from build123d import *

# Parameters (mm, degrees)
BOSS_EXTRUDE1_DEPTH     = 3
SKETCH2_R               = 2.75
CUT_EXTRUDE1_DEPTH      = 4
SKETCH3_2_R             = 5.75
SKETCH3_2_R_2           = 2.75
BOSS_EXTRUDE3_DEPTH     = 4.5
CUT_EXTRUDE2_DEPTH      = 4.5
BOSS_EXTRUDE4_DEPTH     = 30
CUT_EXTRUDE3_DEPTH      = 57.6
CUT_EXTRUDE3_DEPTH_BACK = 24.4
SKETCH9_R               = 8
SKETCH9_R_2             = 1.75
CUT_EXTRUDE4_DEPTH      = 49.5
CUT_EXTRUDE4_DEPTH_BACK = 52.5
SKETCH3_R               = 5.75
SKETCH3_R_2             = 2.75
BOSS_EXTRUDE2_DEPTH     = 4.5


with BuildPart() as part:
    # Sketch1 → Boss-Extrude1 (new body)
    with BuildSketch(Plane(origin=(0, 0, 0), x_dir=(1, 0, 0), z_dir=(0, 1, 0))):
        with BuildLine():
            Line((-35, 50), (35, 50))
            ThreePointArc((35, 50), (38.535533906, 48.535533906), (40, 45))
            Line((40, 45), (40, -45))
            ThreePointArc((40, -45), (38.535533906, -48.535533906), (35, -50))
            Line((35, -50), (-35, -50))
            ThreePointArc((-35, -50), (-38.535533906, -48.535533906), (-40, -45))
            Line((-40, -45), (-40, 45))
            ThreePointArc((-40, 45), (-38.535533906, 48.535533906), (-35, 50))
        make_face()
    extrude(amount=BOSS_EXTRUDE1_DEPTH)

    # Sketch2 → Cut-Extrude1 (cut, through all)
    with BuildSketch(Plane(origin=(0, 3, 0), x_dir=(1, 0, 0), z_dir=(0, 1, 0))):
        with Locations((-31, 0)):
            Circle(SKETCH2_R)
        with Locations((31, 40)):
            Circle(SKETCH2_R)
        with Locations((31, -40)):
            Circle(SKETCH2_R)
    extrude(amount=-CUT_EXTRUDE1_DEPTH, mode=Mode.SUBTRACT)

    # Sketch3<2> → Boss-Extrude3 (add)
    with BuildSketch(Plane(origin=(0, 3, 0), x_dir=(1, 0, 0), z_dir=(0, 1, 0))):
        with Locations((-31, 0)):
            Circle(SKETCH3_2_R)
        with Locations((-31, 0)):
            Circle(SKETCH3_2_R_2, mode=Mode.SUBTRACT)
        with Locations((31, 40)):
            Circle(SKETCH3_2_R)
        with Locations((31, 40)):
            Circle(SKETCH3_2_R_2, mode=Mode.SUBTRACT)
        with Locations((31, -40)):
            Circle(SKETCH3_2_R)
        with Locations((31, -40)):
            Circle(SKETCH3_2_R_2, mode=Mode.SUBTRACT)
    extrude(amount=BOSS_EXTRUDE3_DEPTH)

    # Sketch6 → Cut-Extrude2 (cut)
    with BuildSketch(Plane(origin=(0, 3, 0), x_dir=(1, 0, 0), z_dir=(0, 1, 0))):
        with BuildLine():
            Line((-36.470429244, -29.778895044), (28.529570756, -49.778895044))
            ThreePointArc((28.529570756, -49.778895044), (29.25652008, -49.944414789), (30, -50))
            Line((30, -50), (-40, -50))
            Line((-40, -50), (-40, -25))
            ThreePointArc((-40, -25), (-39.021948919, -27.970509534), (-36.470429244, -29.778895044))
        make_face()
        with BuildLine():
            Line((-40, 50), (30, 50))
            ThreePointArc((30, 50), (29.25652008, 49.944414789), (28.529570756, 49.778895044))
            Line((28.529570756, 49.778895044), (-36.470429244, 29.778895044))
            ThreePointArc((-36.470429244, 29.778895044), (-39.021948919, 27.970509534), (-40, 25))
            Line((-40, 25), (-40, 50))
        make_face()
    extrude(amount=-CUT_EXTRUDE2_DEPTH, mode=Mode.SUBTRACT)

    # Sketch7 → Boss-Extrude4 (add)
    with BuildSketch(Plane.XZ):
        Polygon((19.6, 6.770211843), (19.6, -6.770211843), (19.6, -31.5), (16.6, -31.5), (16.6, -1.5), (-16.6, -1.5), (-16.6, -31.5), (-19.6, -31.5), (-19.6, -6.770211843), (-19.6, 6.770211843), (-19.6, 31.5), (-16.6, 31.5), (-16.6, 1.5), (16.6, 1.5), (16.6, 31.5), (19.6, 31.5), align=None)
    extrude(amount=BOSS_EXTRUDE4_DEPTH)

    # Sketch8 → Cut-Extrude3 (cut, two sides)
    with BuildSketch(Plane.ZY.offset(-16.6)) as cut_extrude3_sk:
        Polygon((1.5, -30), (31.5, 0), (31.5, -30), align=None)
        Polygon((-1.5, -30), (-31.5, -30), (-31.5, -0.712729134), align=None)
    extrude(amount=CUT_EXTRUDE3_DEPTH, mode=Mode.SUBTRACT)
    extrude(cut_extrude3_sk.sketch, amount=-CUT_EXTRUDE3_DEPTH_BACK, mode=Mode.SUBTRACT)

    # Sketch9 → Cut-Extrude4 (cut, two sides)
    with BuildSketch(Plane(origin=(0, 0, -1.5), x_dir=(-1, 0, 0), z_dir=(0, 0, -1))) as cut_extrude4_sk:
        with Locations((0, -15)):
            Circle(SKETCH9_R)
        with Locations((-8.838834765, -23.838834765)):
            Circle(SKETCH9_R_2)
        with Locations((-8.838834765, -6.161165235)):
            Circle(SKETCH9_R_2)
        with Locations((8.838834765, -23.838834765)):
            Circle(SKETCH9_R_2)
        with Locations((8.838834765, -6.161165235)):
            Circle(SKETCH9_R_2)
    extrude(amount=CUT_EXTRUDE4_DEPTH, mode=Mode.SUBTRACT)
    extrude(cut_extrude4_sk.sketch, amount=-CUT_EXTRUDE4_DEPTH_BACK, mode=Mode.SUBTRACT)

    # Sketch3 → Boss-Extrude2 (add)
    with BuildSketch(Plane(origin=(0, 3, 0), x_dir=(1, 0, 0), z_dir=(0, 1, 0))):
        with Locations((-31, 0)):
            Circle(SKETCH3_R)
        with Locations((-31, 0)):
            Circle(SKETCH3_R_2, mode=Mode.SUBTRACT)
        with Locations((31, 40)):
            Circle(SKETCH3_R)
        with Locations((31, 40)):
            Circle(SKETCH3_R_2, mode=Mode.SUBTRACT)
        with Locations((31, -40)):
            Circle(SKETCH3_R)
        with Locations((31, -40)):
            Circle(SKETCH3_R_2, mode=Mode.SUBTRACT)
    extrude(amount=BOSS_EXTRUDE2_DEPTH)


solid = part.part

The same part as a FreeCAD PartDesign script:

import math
import FreeCAD as App
import Part
import Sketcher
from FreeCAD import Vector
Q = App.Units.Quantity

doc = App.newDocument("Part")
params = doc.addObject("Spreadsheet::Sheet", "Params")
for row, (alias, value) in enumerate([
    ("sketch1_radius", "5 mm"),
    ("sketch1_width", "70 mm"),
    ("sketch1_height", "90 mm"),
    ("pad1_length", "3 mm"),
    ("sketch2_diameter", "5.5 mm"),
    ("sketch3_diameter", "11.5 mm"),
    ("sketch3_diameter2", "5.5 mm"),
    ("pad2_length", "4.5 mm"),
    ("sketch4_radius", "5 mm"),
    ("sketch4_width", "70 mm"),
    ("sketch4_height", "25 mm"),
    ("pocket2_length", "4.5 mm"),
    ("sketch5_width", "3 mm"),
    ("sketch5_height", "63 mm"),
    ("sketch5_height2", "30 mm"),
    ("sketch5_width2", "33.2 mm"),
    ("pad3_length", "30 mm"),
    ("sketch6_width", "30 mm"),
    ("sketch7_diameter", "16 mm"),
    ("sketch7_diameter2", "3.5 mm"),
    ("sketch8_diameter", "11.5 mm"),
    ("sketch8_diameter2", "5.5 mm"),
    ("pad4_length", "4.5 mm"),
], start=1):
    params.set(f"A{row}", alias)
    params.set(f"B{row}", "=" + value)
    params.setAlias(f"B{row}", alias)

body = doc.addObject("PartDesign::Body", "Body")

sketch1 = doc.addObject("Sketcher::SketchObject", "Sketch")
body.addObject(sketch1)
sketch1.AttachmentSupport = (doc.XZ_Plane, [""])
sketch1.MapMode = "FlatFace"
sketch1.addGeometry(Part.LineSegment(Vector(35, -50, 0), Vector(-35, -50, 0)), False)
sketch1.addGeometry(Part.ArcOfCircle(Part.Circle(Vector(-35, -45, 0), Vector(0, 0, 1), 5), math.radians(180), math.radians(270)), False)
sketch1.addGeometry(Part.LineSegment(Vector(-40, -45, 0), Vector(-40, 45, 0)), False)
sketch1.addGeometry(Part.ArcOfCircle(Part.Circle(Vector(-35, 45, 0), Vector(0, 0, 1), 5), math.radians(90), math.radians(180)), False)
sketch1.addGeometry(Part.LineSegment(Vector(-35, 50, 0), Vector(35, 50, 0)), False)
sketch1.addGeometry(Part.ArcOfCircle(Part.Circle(Vector(35, 45, 0), Vector(0, 0, 1), 5), math.radians(0), math.radians(90)), False)
sketch1.addGeometry(Part.LineSegment(Vector(40, 45, 0), Vector(40, -45, 0)), False)
sketch1.addGeometry(Part.ArcOfCircle(Part.Circle(Vector(35, -45, 0), Vector(0, 0, 1), 5), math.radians(-90), math.radians(0)), False)
sketch1.addConstraint(Sketcher.Constraint("Tangent", 0, 2, 1, 2))
sketch1.addConstraint(Sketcher.Constraint("Tangent", 1, 1, 2, 1))
sketch1.addConstraint(Sketcher.Constraint("Tangent", 2, 2, 3, 2))
sketch1.addConstraint(Sketcher.Constraint("Tangent", 3, 1, 4, 1))
sketch1.addConstraint(Sketcher.Constraint("Tangent", 4, 2, 5, 2))
sketch1.addConstraint(Sketcher.Constraint("Tangent", 5, 1, 6, 1))
sketch1.addConstraint(Sketcher.Constraint("Tangent", 6, 2, 7, 2))
sketch1.addConstraint(Sketcher.Constraint("Tangent", 7, 1, 0, 1))
sketch1.addConstraint(Sketcher.Constraint("Horizontal", 0))
sketch1.addConstraint(Sketcher.Constraint("Vertical", 2))
sketch1.addConstraint(Sketcher.Constraint("Horizontal", 4))
sketch1.addConstraint(Sketcher.Constraint("Vertical", 6))
sketch1.addConstraint(Sketcher.Constraint("Equal", 1, 3))
sketch1.addConstraint(Sketcher.Constraint("Equal", 3, 5))
sketch1.addConstraint(Sketcher.Constraint("Equal", 5, 7))
sketch1.addConstraint(Sketcher.Constraint("Symmetric", 1, 3, 5, 3, -1, 1))
sketch1.addConstraint(Sketcher.Constraint("Radius", 1, Q("5 mm")))
sketch1.addConstraint(Sketcher.Constraint("DistanceX", 0, 2, 0, 1, Q("70 mm")))
sketch1.addConstraint(Sketcher.Constraint("DistanceY", 2, 1, 2, 2, Q("90 mm")))
sketch1.setExpression("Constraints[16]", "Params.sketch1_radius")
sketch1.setExpression("Constraints[17]", "Params.sketch1_width")
sketch1.setExpression("Constraints[18]", "Params.sketch1_height")
pad1 = doc.addObject("PartDesign::Pad", "Pad")
body.addObject(pad1)
pad1.Profile = sketch1
pad1.setExpression("Length", "Params.pad1_length")
pad1.Reversed = True

sketch2 = doc.addObject("Sketcher::SketchObject", "Sketch001")
body.addObject(sketch2)
sketch2.AttachmentSupport = (doc.XZ_Plane, [""])
sketch2.MapMode = "FlatFace"
sketch2.AttachmentOffset = App.Placement(Vector(0, 0, -3), App.Rotation())
sketch2.addGeometry(Part.Circle(Vector(-31, 0, 0), Vector(0, 0, 1), 2.8), False)
sketch2.addGeometry(Part.Circle(Vector(31, -40, 0), Vector(0, 0, 1), 2.8), False)
sketch2.addGeometry(Part.Circle(Vector(31, 40, 0), Vector(0, 0, 1), 2.8), False)
sketch2.addConstraint(Sketcher.Constraint("Equal", 0, 1))
sketch2.addConstraint(Sketcher.Constraint("Equal", 1, 2))
sketch2.addConstraint(Sketcher.Constraint("Symmetric", 1, 3, 2, 3, -1))
sketch2.addConstraint(Sketcher.Constraint("PointOnObject", 0, 3, -1))
sketch2.addConstraint(Sketcher.Constraint("Diameter", 0, Q("5.5 mm")))
sketch2.addConstraint(Sketcher.Constraint("DistanceX", 0, 3, -1, 1, Q("31 mm")))
sketch2.addConstraint(Sketcher.Constraint("DistanceX", -1, 1, 1, 3, Q("31 mm")))
sketch2.addConstraint(Sketcher.Constraint("DistanceY", 1, 3, -1, 1, Q("40 mm")))
sketch2.setExpression("Constraints[4]", "Params.sketch2_diameter")
pocket1 = doc.addObject("PartDesign::Pocket", "Pocket")
body.addObject(pocket1)
pocket1.Profile = sketch2
pocket1.Type = "ThroughAll"
pocket1.Reversed = True

sketch3 = doc.addObject("Sketcher::SketchObject", "Sketch002")
body.addObject(sketch3)
sketch3.AttachmentSupport = (doc.XZ_Plane, [""])
sketch3.MapMode = "FlatFace"
sketch3.AttachmentOffset = App.Placement(Vector(0, 0, -3), App.Rotation())
sketch3.addGeometry(Part.Circle(Vector(-31, 0, 0), Vector(0, 0, 1), 5.8), False)
sketch3.addGeometry(Part.Circle(Vector(-31, 0, 0), Vector(0, 0, 1), 2.8), False)
sketch3.addGeometry(Part.Circle(Vector(31, -40, 0), Vector(0, 0, 1), 5.8), False)
sketch3.addGeometry(Part.Circle(Vector(31, -40, 0), Vector(0, 0, 1), 2.8), False)
sketch3.addGeometry(Part.Circle(Vector(31, 40, 0), Vector(0, 0, 1), 5.8), False)
sketch3.addGeometry(Part.Circle(Vector(31, 40, 0), Vector(0, 0, 1), 2.8), False)
sketch3.addConstraint(Sketcher.Constraint("Coincident", 1, 3, 0, 3))
sketch3.addConstraint(Sketcher.Constraint("Coincident", 3, 3, 2, 3))
sketch3.addConstraint(Sketcher.Constraint("Coincident", 5, 3, 4, 3))
sketch3.addConstraint(Sketcher.Constraint("Equal", 0, 2))
sketch3.addConstraint(Sketcher.Constraint("Equal", 1, 3))
sketch3.addConstraint(Sketcher.Constraint("Equal", 2, 4))
sketch3.addConstraint(Sketcher.Constraint("Equal", 3, 5))
sketch3.addConstraint(Sketcher.Constraint("Symmetric", 2, 3, 4, 3, -1))
sketch3.addConstraint(Sketcher.Constraint("PointOnObject", 0, 3, -1))
sketch3.addConstraint(Sketcher.Constraint("Diameter", 0, Q("11.5 mm")))
sketch3.addConstraint(Sketcher.Constraint("Diameter", 1, Q("5.5 mm")))
sketch3.addConstraint(Sketcher.Constraint("DistanceX", 0, 3, -1, 1, Q("31 mm")))
sketch3.addConstraint(Sketcher.Constraint("DistanceX", -1, 1, 2, 3, Q("31 mm")))
sketch3.addConstraint(Sketcher.Constraint("DistanceY", 2, 3, -1, 1, Q("40 mm")))
sketch3.setExpression("Constraints[9]", "Params.sketch3_diameter")
sketch3.setExpression("Constraints[10]", "Params.sketch3_diameter2")
pad2 = doc.addObject("PartDesign::Pad", "Pad001")
body.addObject(pad2)
pad2.Profile = sketch3
pad2.setExpression("Length", "Params.pad2_length")
pad2.Reversed = True

sketch4 = doc.addObject("Sketcher::SketchObject", "Sketch003")
body.addObject(sketch4)
sketch4.AttachmentSupport = (doc.XZ_Plane, [""])
sketch4.MapMode = "FlatFace"
sketch4.AttachmentOffset = App.Placement(Vector(0, 0, -3), App.Rotation())
sketch4.addGeometry(Part.LineSegment(Vector(28.5, 49.8, 0), Vector(-36.5, 29.8, 0)), False)
sketch4.addGeometry(Part.ArcOfCircle(Part.Circle(Vector(-35, 25, 0), Vector(0, 0, 1), 5), math.radians(107), math.radians(180)), False)
sketch4.addGeometry(Part.LineSegment(Vector(-40, 25, 0), Vector(-40, 50, 0)), False)
sketch4.addGeometry(Part.LineSegment(Vector(-40, 50, 0), Vector(30, 50, 0)), False)
sketch4.addGeometry(Part.ArcOfCircle(Part.Circle(Vector(30, 45, 0), Vector(0, 0, 1), 5), math.radians(90), math.radians(107.1)), False)
sketch4.addGeometry(Part.LineSegment(Vector(30, -50, 0), Vector(-40, -50, 0)), False)
sketch4.addGeometry(Part.LineSegment(Vector(-40, -50, 0), Vector(-40, -25, 0)), False)
sketch4.addGeometry(Part.ArcOfCircle(Part.Circle(Vector(-35, -25, 0), Vector(0, 0, 1), 5), math.radians(-180), math.radians(-107)), False)
sketch4.addGeometry(Part.LineSegment(Vector(-36.5, -29.8, 0), Vector(28.5, -49.8, 0)), False)
sketch4.addGeometry(Part.ArcOfCircle(Part.Circle(Vector(30, -45, 0), Vector(0, 0, 1), 5), math.radians(-107.1), math.radians(-90)), False)
sketch4.addConstraint(Sketcher.Constraint("Tangent", 0, 2, 1, 1))
sketch4.addConstraint(Sketcher.Constraint("Tangent", 1, 2, 2, 1))
sketch4.addConstraint(Sketcher.Constraint("Coincident", 2, 2, 3, 1))
sketch4.addConstraint(Sketcher.Constraint("Tangent", 3, 2, 4, 1))
sketch4.addConstraint(Sketcher.Constraint("Tangent", 4, 2, 0, 1))
sketch4.addConstraint(Sketcher.Constraint("Coincident", 5, 2, 6, 1))
sketch4.addConstraint(Sketcher.Constraint("Tangent", 6, 2, 7, 1))
sketch4.addConstraint(Sketcher.Constraint("Tangent", 7, 2, 8, 1))
sketch4.addConstraint(Sketcher.Constraint("Tangent", 8, 2, 9, 1))
sketch4.addConstraint(Sketcher.Constraint("Tangent", 9, 2, 5, 1))
sketch4.addConstraint(Sketcher.Constraint("Vertical", 2))
sketch4.addConstraint(Sketcher.Constraint("Horizontal", 3))
sketch4.addConstraint(Sketcher.Constraint("Horizontal", 5))
sketch4.addConstraint(Sketcher.Constraint("Vertical", 6))
sketch4.addConstraint(Sketcher.Constraint("Equal", 1, 4))
sketch4.addConstraint(Sketcher.Constraint("Equal", 4, 7))
sketch4.addConstraint(Sketcher.Constraint("Equal", 7, 9))
sketch4.addConstraint(Sketcher.Constraint("Symmetric", 1, 3, 7, 3, -1))
sketch4.addConstraint(Sketcher.Constraint("Symmetric", 4, 3, 9, 3, -1))
sketch4.addConstraint(Sketcher.Constraint("Radius", 1, Q("5 mm")))
sketch4.addConstraint(Sketcher.Constraint("DistanceX", 3, 1, 3, 2, Q("70 mm")))
sketch4.addConstraint(Sketcher.Constraint("DistanceY", 2, 1, 2, 2, Q("25 mm")))
sketch4.addConstraint(Sketcher.Constraint("DistanceX", 1, 3, -1, 1, Q("35 mm")))
sketch4.addConstraint(Sketcher.Constraint("DistanceY", -1, 1, 1, 3, Q("25 mm")))
sketch4.setExpression("Constraints[19]", "Params.sketch4_radius")
sketch4.setExpression("Constraints[20]", "Params.sketch4_width")
sketch4.setExpression("Constraints[21]", "Params.sketch4_height")
pocket2 = doc.addObject("PartDesign::Pocket", "Pocket001")
body.addObject(pocket2)
pocket2.Profile = sketch4
pocket2.setExpression("Length", "Params.pocket2_length")
pocket2.Reversed = True

sketch5 = doc.addObject("Sketcher::SketchObject", "Sketch004")
body.addObject(sketch5)
sketch5.AttachmentSupport = (doc.XZ_Plane, [""])
sketch5.MapMode = "FlatFace"
sketch5.addGeometry(Part.LineSegment(Vector(19.6, -31.5, 0), Vector(19.6, 31.5, 0)), False)
sketch5.addGeometry(Part.LineSegment(Vector(19.6, 31.5, 0), Vector(16.6, 31.5, 0)), False)
sketch5.addGeometry(Part.LineSegment(Vector(16.6, 31.5, 0), Vector(16.6, 1.5, 0)), False)
sketch5.addGeometry(Part.LineSegment(Vector(16.6, 1.5, 0), Vector(-16.6, 1.5, 0)), False)
sketch5.addGeometry(Part.LineSegment(Vector(-16.6, 1.5, 0), Vector(-16.6, 31.5, 0)), False)
sketch5.addGeometry(Part.LineSegment(Vector(-16.6, 31.5, 0), Vector(-19.6, 31.5, 0)), False)
sketch5.addGeometry(Part.LineSegment(Vector(-19.6, 31.5, 0), Vector(-19.6, -31.5, 0)), False)
sketch5.addGeometry(Part.LineSegment(Vector(-19.6, -31.5, 0), Vector(-16.6, -31.5, 0)), False)
sketch5.addGeometry(Part.LineSegment(Vector(-16.6, -31.5, 0), Vector(-16.6, -1.5, 0)), False)
sketch5.addGeometry(Part.LineSegment(Vector(-16.6, -1.5, 0), Vector(16.6, -1.5, 0)), False)
sketch5.addGeometry(Part.LineSegment(Vector(16.6, -1.5, 0), Vector(16.6, -31.5, 0)), False)
sketch5.addGeometry(Part.LineSegment(Vector(16.6, -31.5, 0), Vector(19.6, -31.5, 0)), False)
sketch5.addConstraint(Sketcher.Constraint("Coincident", 0, 2, 1, 1))
sketch5.addConstraint(Sketcher.Constraint("Coincident", 1, 2, 2, 1))
sketch5.addConstraint(Sketcher.Constraint("Coincident", 2, 2, 3, 1))
sketch5.addConstraint(Sketcher.Constraint("Coincident", 3, 2, 4, 1))
sketch5.addConstraint(Sketcher.Constraint("Coincident", 4, 2, 5, 1))
sketch5.addConstraint(Sketcher.Constraint("Coincident", 5, 2, 6, 1))
sketch5.addConstraint(Sketcher.Constraint("Coincident", 6, 2, 7, 1))
sketch5.addConstraint(Sketcher.Constraint("Coincident", 7, 2, 8, 1))
sketch5.addConstraint(Sketcher.Constraint("Coincident", 8, 2, 9, 1))
sketch5.addConstraint(Sketcher.Constraint("Coincident", 9, 2, 10, 1))
sketch5.addConstraint(Sketcher.Constraint("Coincident", 10, 2, 11, 1))
sketch5.addConstraint(Sketcher.Constraint("Coincident", 11, 2, 0, 1))
sketch5.addConstraint(Sketcher.Constraint("Vertical", 0))
sketch5.addConstraint(Sketcher.Constraint("Horizontal", 1))
sketch5.addConstraint(Sketcher.Constraint("Vertical", 2))
sketch5.addConstraint(Sketcher.Constraint("Horizontal", 3))
sketch5.addConstraint(Sketcher.Constraint("Vertical", 4))
sketch5.addConstraint(Sketcher.Constraint("Horizontal", 5))
sketch5.addConstraint(Sketcher.Constraint("Vertical", 6))
sketch5.addConstraint(Sketcher.Constraint("Horizontal", 7))
sketch5.addConstraint(Sketcher.Constraint("Vertical", 8))
sketch5.addConstraint(Sketcher.Constraint("Horizontal", 9))
sketch5.addConstraint(Sketcher.Constraint("Vertical", 10))
sketch5.addConstraint(Sketcher.Constraint("Horizontal", 11))
sketch5.addConstraint(Sketcher.Constraint("Symmetric", 0, 2, 6, 2, -1, 1))
sketch5.addConstraint(Sketcher.Constraint("Symmetric", 2, 2, 8, 2, -1, 1))
sketch5.addConstraint(Sketcher.Constraint("Symmetric", 4, 2, 10, 2, -1, 1))
sketch5.addConstraint(Sketcher.Constraint("Symmetric", 1, 2, 4, 2, -2))
sketch5.addConstraint(Sketcher.Constraint("DistanceX", 1, 2, 1, 1, Q("3 mm")))
sketch5.addConstraint(Sketcher.Constraint("DistanceY", 0, 1, 0, 2, Q("63 mm")))
sketch5.addConstraint(Sketcher.Constraint("DistanceY", 2, 2, 2, 1, Q("30 mm")))
sketch5.addConstraint(Sketcher.Constraint("DistanceX", 3, 2, 3, 1, Q("33.2 mm")))
sketch5.setExpression("Constraints[28]", "Params.sketch5_width")
sketch5.setExpression("Constraints[29]", "Params.sketch5_height")
sketch5.setExpression("Constraints[30]", "Params.sketch5_height2")
sketch5.setExpression("Constraints[31]", "Params.sketch5_width2")
pad3 = doc.addObject("PartDesign::Pad", "Pad002")
body.addObject(pad3)
pad3.Profile = sketch5
pad3.setExpression("Length", "Params.pad3_length")

sketch6 = doc.addObject("Sketcher::SketchObject", "Sketch005")
body.addObject(sketch6)
sketch6.AttachmentSupport = (doc.YZ_Plane, [""])
sketch6.MapMode = "FlatFace"
sketch6.AttachmentOffset = App.Placement(Vector(0, 0, 16.6), App.Rotation())
sketch6.addGeometry(Part.LineSegment(Vector(0, 32, 0), Vector(-30, 2, 0)), False)
sketch6.addGeometry(Part.LineSegment(Vector(-30, 2, 0), Vector(-30, 32, 0)), False)
sketch6.addGeometry(Part.LineSegment(Vector(-30, 32, 0), Vector(0, 32, 0)), False)
sketch6.addGeometry(Part.LineSegment(Vector(-30, -32, 0), Vector(-30, -2, 0)), False)
sketch6.addGeometry(Part.LineSegment(Vector(-30, -2, 0), Vector(-1, -32, 0)), False)
sketch6.addGeometry(Part.LineSegment(Vector(-1, -32, 0), Vector(-30, -32, 0)), False)
sketch6.addConstraint(Sketcher.Constraint("Coincident", 0, 2, 1, 1))
sketch6.addConstraint(Sketcher.Constraint("Coincident", 1, 2, 2, 1))
sketch6.addConstraint(Sketcher.Constraint("Coincident", 2, 2, 0, 1))
sketch6.addConstraint(Sketcher.Constraint("Coincident", 3, 2, 4, 1))
sketch6.addConstraint(Sketcher.Constraint("Coincident", 4, 2, 5, 1))
sketch6.addConstraint(Sketcher.Constraint("Coincident", 5, 2, 3, 1))
sketch6.addConstraint(Sketcher.Constraint("Vertical", 1))
sketch6.addConstraint(Sketcher.Constraint("Horizontal", 2))
sketch6.addConstraint(Sketcher.Constraint("Vertical", 3))
sketch6.addConstraint(Sketcher.Constraint("Horizontal", 5))
sketch6.addConstraint(Sketcher.Constraint("Symmetric", 0, 2, 3, 2, -1))
sketch6.addConstraint(Sketcher.Constraint("PointOnObject", 2, 2, -2))
sketch6.addConstraint(Sketcher.Constraint("Equal", 2, 1))
sketch6.addConstraint(Sketcher.Constraint("Equal", 1, 3))
sketch6.addConstraint(Sketcher.Constraint("DistanceX", 2, 1, 2, 2, Q("30 mm")))
sketch6.addConstraint(Sketcher.Constraint("DistanceY", 3, 2, 0, 2, Q("3 mm")))
sketch6.addConstraint(Sketcher.Constraint("DistanceX", 5, 2, 5, 1, Q("29.287271 mm")))
sketch6.setExpression("Constraints[14]", "Params.sketch6_width")
pocket3 = doc.addObject("PartDesign::Pocket", "Pocket002")
body.addObject(pocket3)
pocket3.Profile = sketch6
pocket3.Type = "ThroughAll"
pocket3.Midplane = True

sketch7 = doc.addObject("Sketcher::SketchObject", "Sketch006")
body.addObject(sketch7)
sketch7.AttachmentSupport = (doc.XY_Plane, [""])
sketch7.MapMode = "FlatFace"
sketch7.AttachmentOffset = App.Placement(Vector(0, 0, -1.5), App.Rotation())
sketch7.addGeometry(Part.Circle(Vector(0, -15, 0), Vector(0, 0, 1), 8), False)
sketch7.addGeometry(Part.Circle(Vector(8.8, -23.8, 0), Vector(0, 0, 1), 1.8), False)
sketch7.addGeometry(Part.Circle(Vector(8.8, -6.2, 0), Vector(0, 0, 1), 1.8), False)
sketch7.addGeometry(Part.Circle(Vector(-8.8, -23.8, 0), Vector(0, 0, 1), 1.8), False)
sketch7.addGeometry(Part.Circle(Vector(-8.8, -6.2, 0), Vector(0, 0, 1), 1.8), False)
sketch7.addConstraint(Sketcher.Constraint("Equal", 1, 2))
sketch7.addConstraint(Sketcher.Constraint("Equal", 2, 3))
sketch7.addConstraint(Sketcher.Constraint("Equal", 3, 4))
sketch7.addConstraint(Sketcher.Constraint("Symmetric", 1, 3, 3, 3, -2))
sketch7.addConstraint(Sketcher.Constraint("Symmetric", 2, 3, 4, 3, -2))
sketch7.addConstraint(Sketcher.Constraint("PointOnObject", 0, 3, -2))
sketch7.addConstraint(Sketcher.Constraint("Vertical", 1, 3, 2, 3))
sketch7.addConstraint(Sketcher.Constraint("Diameter", 0, Q("16 mm")))
sketch7.addConstraint(Sketcher.Constraint("Diameter", 1, Q("3.5 mm")))
sketch7.addConstraint(Sketcher.Constraint("DistanceY", 0, 3, -1, 1, Q("15 mm")))
sketch7.addConstraint(Sketcher.Constraint("DistanceY", 1, 3, 2, 3, Q("17.67767 mm")))
sketch7.addConstraint(Sketcher.Constraint("DistanceX", 3, 3, 1, 3, Q("17.67767 mm")))
sketch7.addConstraint(Sketcher.Constraint("DistanceY", 1, 3, -1, 1, Q("23.838835 mm")))
sketch7.setExpression("Constraints[7]", "Params.sketch7_diameter")
sketch7.setExpression("Constraints[8]", "Params.sketch7_diameter2")
pocket4 = doc.addObject("PartDesign::Pocket", "Pocket003")
body.addObject(pocket4)
pocket4.Profile = sketch7
pocket4.Type = "ThroughAll"
pocket4.Midplane = True

sketch8 = doc.addObject("Sketcher::SketchObject", "Sketch007")
body.addObject(sketch8)
sketch8.AttachmentSupport = (doc.XZ_Plane, [""])
sketch8.MapMode = "FlatFace"
sketch8.AttachmentOffset = App.Placement(Vector(0, 0, -3), App.Rotation())
sketch8.addGeometry(Part.Circle(Vector(-31, 0, 0), Vector(0, 0, 1), 5.8), False)
sketch8.addGeometry(Part.Circle(Vector(-31, 0, 0), Vector(0, 0, 1), 2.8), False)
sketch8.addGeometry(Part.Circle(Vector(31, -40, 0), Vector(0, 0, 1), 5.8), False)
sketch8.addGeometry(Part.Circle(Vector(31, -40, 0), Vector(0, 0, 1), 2.8), False)
sketch8.addGeometry(Part.Circle(Vector(31, 40, 0), Vector(0, 0, 1), 5.8), False)
sketch8.addGeometry(Part.Circle(Vector(31, 40, 0), Vector(0, 0, 1), 2.8), False)
sketch8.addConstraint(Sketcher.Constraint("Coincident", 1, 3, 0, 3))
sketch8.addConstraint(Sketcher.Constraint("Coincident", 3, 3, 2, 3))
sketch8.addConstraint(Sketcher.Constraint("Coincident", 5, 3, 4, 3))
sketch8.addConstraint(Sketcher.Constraint("Equal", 0, 2))
sketch8.addConstraint(Sketcher.Constraint("Equal", 1, 3))
sketch8.addConstraint(Sketcher.Constraint("Equal", 2, 4))
sketch8.addConstraint(Sketcher.Constraint("Equal", 3, 5))
sketch8.addConstraint(Sketcher.Constraint("Symmetric", 2, 3, 4, 3, -1))
sketch8.addConstraint(Sketcher.Constraint("PointOnObject", 0, 3, -1))
sketch8.addConstraint(Sketcher.Constraint("Diameter", 0, Q("11.5 mm")))
sketch8.addConstraint(Sketcher.Constraint("Diameter", 1, Q("5.5 mm")))
sketch8.addConstraint(Sketcher.Constraint("DistanceX", 0, 3, -1, 1, Q("31 mm")))
sketch8.addConstraint(Sketcher.Constraint("DistanceX", -1, 1, 2, 3, Q("31 mm")))
sketch8.addConstraint(Sketcher.Constraint("DistanceY", 2, 3, -1, 1, Q("40 mm")))
sketch8.setExpression("Constraints[9]", "Params.sketch8_diameter")
sketch8.setExpression("Constraints[10]", "Params.sketch8_diameter2")
pad4 = doc.addObject("PartDesign::Pad", "Pad003")
body.addObject(pad4)
pad4.Profile = sketch8
pad4.setExpression("Length", "Params.pad4_length")
pad4.Reversed = True

doc.recompute()
